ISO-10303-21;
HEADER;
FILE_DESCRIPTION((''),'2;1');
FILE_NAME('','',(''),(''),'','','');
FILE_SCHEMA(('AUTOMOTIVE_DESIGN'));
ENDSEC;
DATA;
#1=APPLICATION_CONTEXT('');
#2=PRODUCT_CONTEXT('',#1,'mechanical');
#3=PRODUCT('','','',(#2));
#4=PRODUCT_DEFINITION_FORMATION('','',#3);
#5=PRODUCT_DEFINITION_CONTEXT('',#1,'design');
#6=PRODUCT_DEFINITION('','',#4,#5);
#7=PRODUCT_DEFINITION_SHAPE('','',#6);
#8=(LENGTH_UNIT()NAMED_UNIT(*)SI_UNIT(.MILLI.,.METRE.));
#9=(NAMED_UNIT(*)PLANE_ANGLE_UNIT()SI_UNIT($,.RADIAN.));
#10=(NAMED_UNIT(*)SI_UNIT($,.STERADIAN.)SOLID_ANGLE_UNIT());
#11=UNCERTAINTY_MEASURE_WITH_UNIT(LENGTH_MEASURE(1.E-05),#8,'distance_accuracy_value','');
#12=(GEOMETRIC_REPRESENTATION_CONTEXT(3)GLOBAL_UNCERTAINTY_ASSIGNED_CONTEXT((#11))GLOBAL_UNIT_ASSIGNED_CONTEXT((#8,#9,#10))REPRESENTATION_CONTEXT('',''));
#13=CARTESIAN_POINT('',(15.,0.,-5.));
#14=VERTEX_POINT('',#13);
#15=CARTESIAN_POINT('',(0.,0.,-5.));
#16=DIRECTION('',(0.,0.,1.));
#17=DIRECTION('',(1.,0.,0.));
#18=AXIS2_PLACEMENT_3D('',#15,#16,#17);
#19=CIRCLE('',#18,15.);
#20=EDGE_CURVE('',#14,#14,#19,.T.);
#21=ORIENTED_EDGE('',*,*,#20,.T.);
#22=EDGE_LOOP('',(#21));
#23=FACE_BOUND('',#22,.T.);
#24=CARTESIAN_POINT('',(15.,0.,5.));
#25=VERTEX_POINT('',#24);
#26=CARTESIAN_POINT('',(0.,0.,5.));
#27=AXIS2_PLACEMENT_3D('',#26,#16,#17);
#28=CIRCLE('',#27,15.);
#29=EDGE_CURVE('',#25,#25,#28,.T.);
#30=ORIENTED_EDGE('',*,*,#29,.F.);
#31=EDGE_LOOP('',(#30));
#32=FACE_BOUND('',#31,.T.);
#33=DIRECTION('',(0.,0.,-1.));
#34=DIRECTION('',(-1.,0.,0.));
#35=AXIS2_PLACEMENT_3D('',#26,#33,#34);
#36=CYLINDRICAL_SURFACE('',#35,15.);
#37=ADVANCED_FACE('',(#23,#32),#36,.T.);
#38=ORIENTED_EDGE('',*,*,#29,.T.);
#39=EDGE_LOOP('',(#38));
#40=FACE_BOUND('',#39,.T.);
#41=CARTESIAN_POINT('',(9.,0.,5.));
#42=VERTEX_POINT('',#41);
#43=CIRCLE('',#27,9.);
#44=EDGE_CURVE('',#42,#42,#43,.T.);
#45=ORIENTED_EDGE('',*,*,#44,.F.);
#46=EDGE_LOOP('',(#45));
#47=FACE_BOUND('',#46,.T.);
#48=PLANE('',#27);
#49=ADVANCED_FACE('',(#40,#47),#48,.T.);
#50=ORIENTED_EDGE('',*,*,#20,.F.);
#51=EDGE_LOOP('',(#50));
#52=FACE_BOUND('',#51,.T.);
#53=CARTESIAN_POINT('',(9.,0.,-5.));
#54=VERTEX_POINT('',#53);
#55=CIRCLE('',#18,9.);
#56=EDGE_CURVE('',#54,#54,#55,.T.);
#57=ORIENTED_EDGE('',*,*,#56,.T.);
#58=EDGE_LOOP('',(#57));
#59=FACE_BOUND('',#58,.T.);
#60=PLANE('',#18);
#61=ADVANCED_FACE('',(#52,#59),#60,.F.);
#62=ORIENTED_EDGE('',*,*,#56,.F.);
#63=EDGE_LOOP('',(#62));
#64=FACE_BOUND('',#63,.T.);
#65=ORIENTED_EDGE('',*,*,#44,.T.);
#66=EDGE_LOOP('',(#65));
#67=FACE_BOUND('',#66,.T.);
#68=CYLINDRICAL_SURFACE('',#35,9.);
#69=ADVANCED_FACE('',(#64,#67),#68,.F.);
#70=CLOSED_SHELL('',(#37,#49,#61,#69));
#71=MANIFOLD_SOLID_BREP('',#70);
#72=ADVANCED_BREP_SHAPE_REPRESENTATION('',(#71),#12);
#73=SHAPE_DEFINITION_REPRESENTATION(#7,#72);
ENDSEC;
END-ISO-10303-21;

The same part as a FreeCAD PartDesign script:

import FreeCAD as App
import Part
import Sketcher
from FreeCAD import Vector

doc = App.newDocument("Part")
body = doc.addObject("PartDesign::Body", "Body")

sketch1 = doc.addObject("Sketcher::SketchObject", "Sketch")
body.addObject(sketch1)
sketch1.AttachmentSupport = (doc.XY_Plane, [""])
sketch1.MapMode = "FlatFace"
sketch1.addGeometry([
    Part.Circle(Vector(0, 0, 0), Vector(0, 0, 1), 15),
    Part.Circle(Vector(0, 0, 0), Vector(0, 0, 1), 9),
], False)
sketch1.addConstraint([
    Sketcher.Constraint("Coincident", 0, 3, -1, 1),
    Sketcher.Constraint("Coincident", 1, 3, -1, 1),
    Sketcher.Constraint("Diameter", 0, 30.0),
    Sketcher.Constraint("Diameter", 1, 18.0),
])
pad1 = doc.addObject("PartDesign::Pad", "Pad")
body.addObject(pad1)
pad1.Profile = sketch1
pad1.Length = 10
pad1.Midplane = True

doc.recompute()
